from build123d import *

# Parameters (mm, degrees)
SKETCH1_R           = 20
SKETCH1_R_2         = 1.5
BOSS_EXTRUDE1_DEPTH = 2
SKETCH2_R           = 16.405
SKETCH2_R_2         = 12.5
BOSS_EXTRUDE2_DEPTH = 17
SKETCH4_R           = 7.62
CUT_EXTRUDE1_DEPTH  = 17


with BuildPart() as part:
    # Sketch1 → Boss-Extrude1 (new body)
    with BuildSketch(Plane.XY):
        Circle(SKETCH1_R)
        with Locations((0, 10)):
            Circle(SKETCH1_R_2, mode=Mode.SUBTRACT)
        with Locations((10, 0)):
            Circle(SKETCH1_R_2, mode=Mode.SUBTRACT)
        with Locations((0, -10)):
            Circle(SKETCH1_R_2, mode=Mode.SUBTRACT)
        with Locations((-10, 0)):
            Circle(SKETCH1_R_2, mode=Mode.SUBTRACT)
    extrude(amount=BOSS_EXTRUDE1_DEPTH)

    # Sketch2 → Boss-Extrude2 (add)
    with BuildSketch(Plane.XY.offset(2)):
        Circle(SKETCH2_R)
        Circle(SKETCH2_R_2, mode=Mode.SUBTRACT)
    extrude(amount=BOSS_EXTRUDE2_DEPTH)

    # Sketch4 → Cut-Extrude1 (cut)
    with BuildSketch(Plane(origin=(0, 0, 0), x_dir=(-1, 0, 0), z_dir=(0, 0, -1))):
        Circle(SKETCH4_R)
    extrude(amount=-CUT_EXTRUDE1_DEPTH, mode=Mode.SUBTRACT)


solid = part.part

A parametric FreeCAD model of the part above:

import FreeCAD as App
import Part
import Sketcher

doc = App.newDocument("Part")
body = doc.addObject("PartDesign::Body", "Body")

# Sketch on XY plane
sketch1 = body.newObject("Sketcher::SketchObject", "Sketch")
sketch1.AttachmentSupport = (doc.getObject("XY_Plane"), [""])
sketch1.MapMode = "FlatFace"
sketch1.addGeometry(Part.Circle(App.Vector(0, 0, 0), App.Vector(0, 0, 1), 20), False)
sketch1.addGeometry(Part.Circle(App.Vector(0, -10, 0), App.Vector(0, 0, 1), 1.5), False)
sketch1.addGeometry(Part.Circle(App.Vector(-10, 0, 0), App.Vector(0, 0, 1), 1.5), False)
sketch1.addGeometry(Part.Circle(App.Vector(10, 0, 0), App.Vector(0, 0, 1), 1.5), False)
sketch1.addGeometry(Part.Circle(App.Vector(0, 10, 0), App.Vector(0, 0, 1), 1.5), False)
sketch1.addConstraint(Sketcher.Constraint("Coincident", 0, 3, -1, 1))
sketch1.addConstraint(Sketcher.Constraint("Equal", 1, 2))
sketch1.addConstraint(Sketcher.Constraint("Equal", 2, 3))
sketch1.addConstraint(Sketcher.Constraint("Equal", 3, 4))
sketch1.addConstraint(Sketcher.Constraint("Symmetric", 2, 3, 3, 3, -1, 1))
sketch1.addConstraint(Sketcher.Constraint("Symmetric", 1, 3, 4, 3, -1, 1))
sketch1.addConstraint(Sketcher.Constraint("PointOnObject", 1, 3, -2))
sketch1.addConstraint(Sketcher.Constraint("PointOnObject", 2, 3, -1))
sketch1.addConstraint(Sketcher.Constraint("Diameter", 0, 40.0))
sketch1.addConstraint(Sketcher.Constraint("Diameter", 1, 3.0))
sketch1.addConstraint(Sketcher.Constraint("DistanceY", 1, 3, -1, 1, 10.0))
sketch1.addConstraint(Sketcher.Constraint("DistanceX", 2, 3, -1, 1, 10.0))
pad1 = body.newObject("PartDesign::Pad", "Pad")
pad1.Profile = sketch1
pad1.Length = 2

# Sketch on XY plane
sketch2 = body.newObject("Sketcher::SketchObject", "Sketch001")
sketch2.AttachmentSupport = (doc.getObject("XY_Plane"), [""])
sketch2.MapMode = "FlatFace"
sketch2.AttachmentOffset = App.Placement(App.Vector(0, 0, 2), App.Rotation())
sketch2.addGeometry(Part.Circle(App.Vector(0, 0, 0), App.Vector(0, 0, 1), 16.405), False)
sketch2.addGeometry(Part.Circle(App.Vector(0, 0, 0), App.Vector(0, 0, 1), 12.5), False)
sketch2.addConstraint(Sketcher.Constraint("Coincident", 0, 3, -1, 1))
sketch2.addConstraint(Sketcher.Constraint("Coincident", 1, 3, -1, 1))
sketch2.addConstraint(Sketcher.Constraint("Diameter", 1, 25.0))
sketch2.addConstraint(Sketcher.Constraint("Diameter", 0, 32.81))
pad2 = body.newObject("PartDesign::Pad", "Pad001")
pad2.Profile = sketch2
pad2.Length = 17

# Sketch on XY plane
sketch3 = body.newObject("Sketcher::SketchObject", "Sketch002")
sketch3.AttachmentSupport = (doc.getObject("XY_Plane"), [""])
sketch3.MapMode = "FlatFace"
sketch3.addGeometry(Part.Circle(App.Vector(0, 0, 0), App.Vector(0, 0, 1), 7.62), False)
sketch3.addConstraint(Sketcher.Constraint("Coincident", 0, 3, -1, 1))
sketch3.addConstraint(Sketcher.Constraint("Diameter", 0, 15.24))
pocket1 = body.newObject("PartDesign::Pocket", "Pocket")
pocket1.Profile = sketch3
pocket1.Length = 17
pocket1.Reversed = True

doc.recompute()
